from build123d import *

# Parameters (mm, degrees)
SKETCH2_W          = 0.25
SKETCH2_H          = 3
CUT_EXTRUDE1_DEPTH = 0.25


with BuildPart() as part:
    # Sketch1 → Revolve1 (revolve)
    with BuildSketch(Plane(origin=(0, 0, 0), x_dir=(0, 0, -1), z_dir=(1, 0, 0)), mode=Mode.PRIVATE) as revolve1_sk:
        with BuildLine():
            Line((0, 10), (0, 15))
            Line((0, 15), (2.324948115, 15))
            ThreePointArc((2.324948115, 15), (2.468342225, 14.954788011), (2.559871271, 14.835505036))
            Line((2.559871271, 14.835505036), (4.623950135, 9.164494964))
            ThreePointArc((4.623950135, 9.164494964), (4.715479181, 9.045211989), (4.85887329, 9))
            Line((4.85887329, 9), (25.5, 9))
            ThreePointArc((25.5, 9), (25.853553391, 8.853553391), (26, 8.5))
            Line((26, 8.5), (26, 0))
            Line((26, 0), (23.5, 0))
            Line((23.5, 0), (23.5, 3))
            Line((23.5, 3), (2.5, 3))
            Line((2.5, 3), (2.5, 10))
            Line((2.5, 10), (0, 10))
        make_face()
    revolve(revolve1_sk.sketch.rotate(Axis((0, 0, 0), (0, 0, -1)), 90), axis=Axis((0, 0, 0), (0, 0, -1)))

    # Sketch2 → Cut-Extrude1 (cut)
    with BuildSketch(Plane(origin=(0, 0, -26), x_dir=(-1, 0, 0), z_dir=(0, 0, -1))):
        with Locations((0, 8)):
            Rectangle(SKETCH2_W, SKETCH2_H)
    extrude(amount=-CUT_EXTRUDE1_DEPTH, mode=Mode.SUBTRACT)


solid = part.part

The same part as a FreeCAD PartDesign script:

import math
import FreeCAD as App
import Part
import Sketcher
from FreeCAD import Vector
Q = App.Units.Quantity

doc = App.newDocument("Part")
body = doc.addObject("PartDesign::Body", "Body")

# Sketch on YZ plane
sketch1 = body.newObject("Sketcher::SketchObject", "Sketch")
sketch1.AttachmentSupport = (doc.getObject("YZ_Plane"), [""])
sketch1.MapMode = "FlatFace"
sketch1.addGeometry([
    Part.LineSegment(Vector(15, 0, 0), Vector(10, 0, 0)),  # 0
    Part.LineSegment(Vector(10, 0, 0), Vector(10, -2.5, 0)),  # 1
    Part.LineSegment(Vector(10, -2.5, 0), Vector(3, -2.5, 0)),  # 2
    Part.LineSegment(Vector(3, -2.5, 0), Vector(3, -23.5, 0)),  # 3
    Part.LineSegment(Vector(3, -23.5, 0), Vector(0, -23.5, 0)),  # 4
    Part.LineSegment(Vector(0, -23.5, 0), Vector(0, -26, 0)),  # 5
    Part.LineSegment(Vector(0, -26, 0), Vector(8.5, -26, 0)),  # 6
    Part.ArcOfCircle(Part.Circle(Vector(8.5, -25.5, 0), Vector(0, 0, 1), 0.5), math.radians(-90), math.radians(0)),  # 7
    Part.LineSegment(Vector(9, -25.5, 0), Vector(9, -4.858873, 0)),  # 8
    Part.ArcOfCircle(Part.Circle(Vector(9.25, -4.858873, 0), Vector(0, 0, 1), 0.25), math.radians(110), math.radians(180)),  # 9
    Part.LineSegment(Vector(9.164495, -4.62395, 0), Vector(14.835505, -2.559871, 0)),  # 10
    Part.ArcOfCircle(Part.Circle(Vector(14.75, -2.324948, 0), Vector(0, 0, 1), 0.25), math.radians(-70), math.radians(0)),  # 11
    Part.LineSegment(Vector(15, -2.324948, 0), Vector(15, 0, 0)),  # 12
], False)
sketch1.addConstraint([
    Sketcher.Constraint("Coincident", 0, 2, 1, 1),
    Sketcher.Constraint("Coincident", 1, 2, 2, 1),
    Sketcher.Constraint("Coincident", 2, 2, 3, 1),
    Sketcher.Constraint("Coincident", 3, 2, 4, 1),
    Sketcher.Constraint("Coincident", 4, 2, 5, 1),
    Sketcher.Constraint("Coincident", 5, 2, 6, 1),
    Sketcher.Constraint("Tangent", 6, 2, 7, 1),
    Sketcher.Constraint("Tangent", 7, 2, 8, 1),
    Sketcher.Constraint("Tangent", 8, 2, 9, 2),
    Sketcher.Constraint("Tangent", 9, 1, 10, 1),
    Sketcher.Constraint("Tangent", 10, 2, 11, 1),
    Sketcher.Constraint("Tangent", 11, 2, 12, 1),
    Sketcher.Constraint("Coincident", 12, 2, 0, 1),
    Sketcher.Constraint("Horizontal", 0),
    Sketcher.Constraint("Vertical", 1),
    Sketcher.Constraint("Horizontal", 2),
    Sketcher.Constraint("Vertical", 3),
    Sketcher.Constraint("Horizontal", 4),
    Sketcher.Constraint("Vertical", 5),
    Sketcher.Constraint("Horizontal", 6),
    Sketcher.Constraint("Vertical", 8),
    Sketcher.Constraint("Vertical", 12),
    Sketcher.Constraint("Equal", 9, 11),
    Sketcher.Constraint("PointOnObject", 0, 2, -1),
    Sketcher.Constraint("PointOnObject", 4, 2, -2),
    Sketcher.Constraint("Equal", 1, 5),
    Sketcher.Constraint("Radius", 7, Q("0.5 mm")),
    Sketcher.Constraint("DistanceX", 0, 2, 0, 1, Q("5 mm")),
    Sketcher.Constraint("DistanceX", 2, 2, 2, 1, Q("7 mm")),
    Sketcher.Constraint("DistanceX", 4, 2, 4, 1, Q("3 mm")),
    Sketcher.Constraint("DistanceY", 3, 2, 3, 1, Q("21 mm")),
    Sketcher.Constraint("Angle", 10, Q("20 deg")),
    Sketcher.Constraint("Radius", 9, Q("0.25 mm")),
    Sketcher.Constraint("DistanceX", 6, 1, 6, 2, Q("8.5 mm")),
    Sketcher.Constraint("DistanceY", 1, 2, 1, 1, Q("2.5 mm")),
    Sketcher.Constraint("DistanceY", 12, 1, 12, 2, Q("2.324948 mm")),
])
revolution = body.newObject("PartDesign::Revolution", "Revolution")
revolution.Profile = sketch1
revolution.ReferenceAxis = (sketch1, ["V_Axis"])
revolution.Angle = 360

# Sketch on XY plane
sketch2 = body.newObject("Sketcher::SketchObject", "Sketch001")
sketch2.AttachmentSupport = (doc.getObject("XY_Plane"), [""])
sketch2.MapMode = "FlatFace"
sketch2.AttachmentOffset = App.Placement(Vector(0, 0, -26), App.Rotation())
sketch2.addGeometry([
    Part.LineSegment(Vector(0.125, 9.5, 0), Vector(0.125, 6.5, 0)),
    Part.LineSegment(Vector(0.125, 6.5, 0), Vector(-0.125, 6.5, 0)),
    Part.LineSegment(Vector(-0.125, 6.5, 0), Vector(-0.125, 9.5, 0)),
    Part.LineSegment(Vector(-0.125, 9.5, 0), Vector(0.125, 9.5, 0)),
], False)
sketch2.addConstraint([
    Sketcher.Constraint("Coincident", 0, 2, 1, 1),
    Sketcher.Constraint("Coincident", 1, 2, 2, 1),
    Sketcher.Constraint("Coincident", 2, 2, 3, 1),
    Sketcher.Constraint("Coincident", 3, 2, 0, 1),
    Sketcher.Constraint("Vertical", 0),
    Sketcher.Constraint("Horizontal", 1),
    Sketcher.Constraint("Vertical", 2),
    Sketcher.Constraint("Horizontal", 3),
    Sketcher.Constraint("DistanceY", 0, 2, 0, 1, Q("3 mm")),
    Sketcher.Constraint("DistanceX", 1, 2, 1, 1, Q("0.25 mm")),
    Sketcher.Constraint("DistanceY", -1, 1, 0, 2, Q("6.5 mm")),
    Sketcher.Constraint("DistanceX", -1, 1, 0, 2, Q("0.125 mm")),
])
pocket1 = body.newObject("PartDesign::Pocket", "Pocket")
pocket1.Profile = sketch2
pocket1.Length = 0.25
pocket1.Reversed = True

doc.recompute()
